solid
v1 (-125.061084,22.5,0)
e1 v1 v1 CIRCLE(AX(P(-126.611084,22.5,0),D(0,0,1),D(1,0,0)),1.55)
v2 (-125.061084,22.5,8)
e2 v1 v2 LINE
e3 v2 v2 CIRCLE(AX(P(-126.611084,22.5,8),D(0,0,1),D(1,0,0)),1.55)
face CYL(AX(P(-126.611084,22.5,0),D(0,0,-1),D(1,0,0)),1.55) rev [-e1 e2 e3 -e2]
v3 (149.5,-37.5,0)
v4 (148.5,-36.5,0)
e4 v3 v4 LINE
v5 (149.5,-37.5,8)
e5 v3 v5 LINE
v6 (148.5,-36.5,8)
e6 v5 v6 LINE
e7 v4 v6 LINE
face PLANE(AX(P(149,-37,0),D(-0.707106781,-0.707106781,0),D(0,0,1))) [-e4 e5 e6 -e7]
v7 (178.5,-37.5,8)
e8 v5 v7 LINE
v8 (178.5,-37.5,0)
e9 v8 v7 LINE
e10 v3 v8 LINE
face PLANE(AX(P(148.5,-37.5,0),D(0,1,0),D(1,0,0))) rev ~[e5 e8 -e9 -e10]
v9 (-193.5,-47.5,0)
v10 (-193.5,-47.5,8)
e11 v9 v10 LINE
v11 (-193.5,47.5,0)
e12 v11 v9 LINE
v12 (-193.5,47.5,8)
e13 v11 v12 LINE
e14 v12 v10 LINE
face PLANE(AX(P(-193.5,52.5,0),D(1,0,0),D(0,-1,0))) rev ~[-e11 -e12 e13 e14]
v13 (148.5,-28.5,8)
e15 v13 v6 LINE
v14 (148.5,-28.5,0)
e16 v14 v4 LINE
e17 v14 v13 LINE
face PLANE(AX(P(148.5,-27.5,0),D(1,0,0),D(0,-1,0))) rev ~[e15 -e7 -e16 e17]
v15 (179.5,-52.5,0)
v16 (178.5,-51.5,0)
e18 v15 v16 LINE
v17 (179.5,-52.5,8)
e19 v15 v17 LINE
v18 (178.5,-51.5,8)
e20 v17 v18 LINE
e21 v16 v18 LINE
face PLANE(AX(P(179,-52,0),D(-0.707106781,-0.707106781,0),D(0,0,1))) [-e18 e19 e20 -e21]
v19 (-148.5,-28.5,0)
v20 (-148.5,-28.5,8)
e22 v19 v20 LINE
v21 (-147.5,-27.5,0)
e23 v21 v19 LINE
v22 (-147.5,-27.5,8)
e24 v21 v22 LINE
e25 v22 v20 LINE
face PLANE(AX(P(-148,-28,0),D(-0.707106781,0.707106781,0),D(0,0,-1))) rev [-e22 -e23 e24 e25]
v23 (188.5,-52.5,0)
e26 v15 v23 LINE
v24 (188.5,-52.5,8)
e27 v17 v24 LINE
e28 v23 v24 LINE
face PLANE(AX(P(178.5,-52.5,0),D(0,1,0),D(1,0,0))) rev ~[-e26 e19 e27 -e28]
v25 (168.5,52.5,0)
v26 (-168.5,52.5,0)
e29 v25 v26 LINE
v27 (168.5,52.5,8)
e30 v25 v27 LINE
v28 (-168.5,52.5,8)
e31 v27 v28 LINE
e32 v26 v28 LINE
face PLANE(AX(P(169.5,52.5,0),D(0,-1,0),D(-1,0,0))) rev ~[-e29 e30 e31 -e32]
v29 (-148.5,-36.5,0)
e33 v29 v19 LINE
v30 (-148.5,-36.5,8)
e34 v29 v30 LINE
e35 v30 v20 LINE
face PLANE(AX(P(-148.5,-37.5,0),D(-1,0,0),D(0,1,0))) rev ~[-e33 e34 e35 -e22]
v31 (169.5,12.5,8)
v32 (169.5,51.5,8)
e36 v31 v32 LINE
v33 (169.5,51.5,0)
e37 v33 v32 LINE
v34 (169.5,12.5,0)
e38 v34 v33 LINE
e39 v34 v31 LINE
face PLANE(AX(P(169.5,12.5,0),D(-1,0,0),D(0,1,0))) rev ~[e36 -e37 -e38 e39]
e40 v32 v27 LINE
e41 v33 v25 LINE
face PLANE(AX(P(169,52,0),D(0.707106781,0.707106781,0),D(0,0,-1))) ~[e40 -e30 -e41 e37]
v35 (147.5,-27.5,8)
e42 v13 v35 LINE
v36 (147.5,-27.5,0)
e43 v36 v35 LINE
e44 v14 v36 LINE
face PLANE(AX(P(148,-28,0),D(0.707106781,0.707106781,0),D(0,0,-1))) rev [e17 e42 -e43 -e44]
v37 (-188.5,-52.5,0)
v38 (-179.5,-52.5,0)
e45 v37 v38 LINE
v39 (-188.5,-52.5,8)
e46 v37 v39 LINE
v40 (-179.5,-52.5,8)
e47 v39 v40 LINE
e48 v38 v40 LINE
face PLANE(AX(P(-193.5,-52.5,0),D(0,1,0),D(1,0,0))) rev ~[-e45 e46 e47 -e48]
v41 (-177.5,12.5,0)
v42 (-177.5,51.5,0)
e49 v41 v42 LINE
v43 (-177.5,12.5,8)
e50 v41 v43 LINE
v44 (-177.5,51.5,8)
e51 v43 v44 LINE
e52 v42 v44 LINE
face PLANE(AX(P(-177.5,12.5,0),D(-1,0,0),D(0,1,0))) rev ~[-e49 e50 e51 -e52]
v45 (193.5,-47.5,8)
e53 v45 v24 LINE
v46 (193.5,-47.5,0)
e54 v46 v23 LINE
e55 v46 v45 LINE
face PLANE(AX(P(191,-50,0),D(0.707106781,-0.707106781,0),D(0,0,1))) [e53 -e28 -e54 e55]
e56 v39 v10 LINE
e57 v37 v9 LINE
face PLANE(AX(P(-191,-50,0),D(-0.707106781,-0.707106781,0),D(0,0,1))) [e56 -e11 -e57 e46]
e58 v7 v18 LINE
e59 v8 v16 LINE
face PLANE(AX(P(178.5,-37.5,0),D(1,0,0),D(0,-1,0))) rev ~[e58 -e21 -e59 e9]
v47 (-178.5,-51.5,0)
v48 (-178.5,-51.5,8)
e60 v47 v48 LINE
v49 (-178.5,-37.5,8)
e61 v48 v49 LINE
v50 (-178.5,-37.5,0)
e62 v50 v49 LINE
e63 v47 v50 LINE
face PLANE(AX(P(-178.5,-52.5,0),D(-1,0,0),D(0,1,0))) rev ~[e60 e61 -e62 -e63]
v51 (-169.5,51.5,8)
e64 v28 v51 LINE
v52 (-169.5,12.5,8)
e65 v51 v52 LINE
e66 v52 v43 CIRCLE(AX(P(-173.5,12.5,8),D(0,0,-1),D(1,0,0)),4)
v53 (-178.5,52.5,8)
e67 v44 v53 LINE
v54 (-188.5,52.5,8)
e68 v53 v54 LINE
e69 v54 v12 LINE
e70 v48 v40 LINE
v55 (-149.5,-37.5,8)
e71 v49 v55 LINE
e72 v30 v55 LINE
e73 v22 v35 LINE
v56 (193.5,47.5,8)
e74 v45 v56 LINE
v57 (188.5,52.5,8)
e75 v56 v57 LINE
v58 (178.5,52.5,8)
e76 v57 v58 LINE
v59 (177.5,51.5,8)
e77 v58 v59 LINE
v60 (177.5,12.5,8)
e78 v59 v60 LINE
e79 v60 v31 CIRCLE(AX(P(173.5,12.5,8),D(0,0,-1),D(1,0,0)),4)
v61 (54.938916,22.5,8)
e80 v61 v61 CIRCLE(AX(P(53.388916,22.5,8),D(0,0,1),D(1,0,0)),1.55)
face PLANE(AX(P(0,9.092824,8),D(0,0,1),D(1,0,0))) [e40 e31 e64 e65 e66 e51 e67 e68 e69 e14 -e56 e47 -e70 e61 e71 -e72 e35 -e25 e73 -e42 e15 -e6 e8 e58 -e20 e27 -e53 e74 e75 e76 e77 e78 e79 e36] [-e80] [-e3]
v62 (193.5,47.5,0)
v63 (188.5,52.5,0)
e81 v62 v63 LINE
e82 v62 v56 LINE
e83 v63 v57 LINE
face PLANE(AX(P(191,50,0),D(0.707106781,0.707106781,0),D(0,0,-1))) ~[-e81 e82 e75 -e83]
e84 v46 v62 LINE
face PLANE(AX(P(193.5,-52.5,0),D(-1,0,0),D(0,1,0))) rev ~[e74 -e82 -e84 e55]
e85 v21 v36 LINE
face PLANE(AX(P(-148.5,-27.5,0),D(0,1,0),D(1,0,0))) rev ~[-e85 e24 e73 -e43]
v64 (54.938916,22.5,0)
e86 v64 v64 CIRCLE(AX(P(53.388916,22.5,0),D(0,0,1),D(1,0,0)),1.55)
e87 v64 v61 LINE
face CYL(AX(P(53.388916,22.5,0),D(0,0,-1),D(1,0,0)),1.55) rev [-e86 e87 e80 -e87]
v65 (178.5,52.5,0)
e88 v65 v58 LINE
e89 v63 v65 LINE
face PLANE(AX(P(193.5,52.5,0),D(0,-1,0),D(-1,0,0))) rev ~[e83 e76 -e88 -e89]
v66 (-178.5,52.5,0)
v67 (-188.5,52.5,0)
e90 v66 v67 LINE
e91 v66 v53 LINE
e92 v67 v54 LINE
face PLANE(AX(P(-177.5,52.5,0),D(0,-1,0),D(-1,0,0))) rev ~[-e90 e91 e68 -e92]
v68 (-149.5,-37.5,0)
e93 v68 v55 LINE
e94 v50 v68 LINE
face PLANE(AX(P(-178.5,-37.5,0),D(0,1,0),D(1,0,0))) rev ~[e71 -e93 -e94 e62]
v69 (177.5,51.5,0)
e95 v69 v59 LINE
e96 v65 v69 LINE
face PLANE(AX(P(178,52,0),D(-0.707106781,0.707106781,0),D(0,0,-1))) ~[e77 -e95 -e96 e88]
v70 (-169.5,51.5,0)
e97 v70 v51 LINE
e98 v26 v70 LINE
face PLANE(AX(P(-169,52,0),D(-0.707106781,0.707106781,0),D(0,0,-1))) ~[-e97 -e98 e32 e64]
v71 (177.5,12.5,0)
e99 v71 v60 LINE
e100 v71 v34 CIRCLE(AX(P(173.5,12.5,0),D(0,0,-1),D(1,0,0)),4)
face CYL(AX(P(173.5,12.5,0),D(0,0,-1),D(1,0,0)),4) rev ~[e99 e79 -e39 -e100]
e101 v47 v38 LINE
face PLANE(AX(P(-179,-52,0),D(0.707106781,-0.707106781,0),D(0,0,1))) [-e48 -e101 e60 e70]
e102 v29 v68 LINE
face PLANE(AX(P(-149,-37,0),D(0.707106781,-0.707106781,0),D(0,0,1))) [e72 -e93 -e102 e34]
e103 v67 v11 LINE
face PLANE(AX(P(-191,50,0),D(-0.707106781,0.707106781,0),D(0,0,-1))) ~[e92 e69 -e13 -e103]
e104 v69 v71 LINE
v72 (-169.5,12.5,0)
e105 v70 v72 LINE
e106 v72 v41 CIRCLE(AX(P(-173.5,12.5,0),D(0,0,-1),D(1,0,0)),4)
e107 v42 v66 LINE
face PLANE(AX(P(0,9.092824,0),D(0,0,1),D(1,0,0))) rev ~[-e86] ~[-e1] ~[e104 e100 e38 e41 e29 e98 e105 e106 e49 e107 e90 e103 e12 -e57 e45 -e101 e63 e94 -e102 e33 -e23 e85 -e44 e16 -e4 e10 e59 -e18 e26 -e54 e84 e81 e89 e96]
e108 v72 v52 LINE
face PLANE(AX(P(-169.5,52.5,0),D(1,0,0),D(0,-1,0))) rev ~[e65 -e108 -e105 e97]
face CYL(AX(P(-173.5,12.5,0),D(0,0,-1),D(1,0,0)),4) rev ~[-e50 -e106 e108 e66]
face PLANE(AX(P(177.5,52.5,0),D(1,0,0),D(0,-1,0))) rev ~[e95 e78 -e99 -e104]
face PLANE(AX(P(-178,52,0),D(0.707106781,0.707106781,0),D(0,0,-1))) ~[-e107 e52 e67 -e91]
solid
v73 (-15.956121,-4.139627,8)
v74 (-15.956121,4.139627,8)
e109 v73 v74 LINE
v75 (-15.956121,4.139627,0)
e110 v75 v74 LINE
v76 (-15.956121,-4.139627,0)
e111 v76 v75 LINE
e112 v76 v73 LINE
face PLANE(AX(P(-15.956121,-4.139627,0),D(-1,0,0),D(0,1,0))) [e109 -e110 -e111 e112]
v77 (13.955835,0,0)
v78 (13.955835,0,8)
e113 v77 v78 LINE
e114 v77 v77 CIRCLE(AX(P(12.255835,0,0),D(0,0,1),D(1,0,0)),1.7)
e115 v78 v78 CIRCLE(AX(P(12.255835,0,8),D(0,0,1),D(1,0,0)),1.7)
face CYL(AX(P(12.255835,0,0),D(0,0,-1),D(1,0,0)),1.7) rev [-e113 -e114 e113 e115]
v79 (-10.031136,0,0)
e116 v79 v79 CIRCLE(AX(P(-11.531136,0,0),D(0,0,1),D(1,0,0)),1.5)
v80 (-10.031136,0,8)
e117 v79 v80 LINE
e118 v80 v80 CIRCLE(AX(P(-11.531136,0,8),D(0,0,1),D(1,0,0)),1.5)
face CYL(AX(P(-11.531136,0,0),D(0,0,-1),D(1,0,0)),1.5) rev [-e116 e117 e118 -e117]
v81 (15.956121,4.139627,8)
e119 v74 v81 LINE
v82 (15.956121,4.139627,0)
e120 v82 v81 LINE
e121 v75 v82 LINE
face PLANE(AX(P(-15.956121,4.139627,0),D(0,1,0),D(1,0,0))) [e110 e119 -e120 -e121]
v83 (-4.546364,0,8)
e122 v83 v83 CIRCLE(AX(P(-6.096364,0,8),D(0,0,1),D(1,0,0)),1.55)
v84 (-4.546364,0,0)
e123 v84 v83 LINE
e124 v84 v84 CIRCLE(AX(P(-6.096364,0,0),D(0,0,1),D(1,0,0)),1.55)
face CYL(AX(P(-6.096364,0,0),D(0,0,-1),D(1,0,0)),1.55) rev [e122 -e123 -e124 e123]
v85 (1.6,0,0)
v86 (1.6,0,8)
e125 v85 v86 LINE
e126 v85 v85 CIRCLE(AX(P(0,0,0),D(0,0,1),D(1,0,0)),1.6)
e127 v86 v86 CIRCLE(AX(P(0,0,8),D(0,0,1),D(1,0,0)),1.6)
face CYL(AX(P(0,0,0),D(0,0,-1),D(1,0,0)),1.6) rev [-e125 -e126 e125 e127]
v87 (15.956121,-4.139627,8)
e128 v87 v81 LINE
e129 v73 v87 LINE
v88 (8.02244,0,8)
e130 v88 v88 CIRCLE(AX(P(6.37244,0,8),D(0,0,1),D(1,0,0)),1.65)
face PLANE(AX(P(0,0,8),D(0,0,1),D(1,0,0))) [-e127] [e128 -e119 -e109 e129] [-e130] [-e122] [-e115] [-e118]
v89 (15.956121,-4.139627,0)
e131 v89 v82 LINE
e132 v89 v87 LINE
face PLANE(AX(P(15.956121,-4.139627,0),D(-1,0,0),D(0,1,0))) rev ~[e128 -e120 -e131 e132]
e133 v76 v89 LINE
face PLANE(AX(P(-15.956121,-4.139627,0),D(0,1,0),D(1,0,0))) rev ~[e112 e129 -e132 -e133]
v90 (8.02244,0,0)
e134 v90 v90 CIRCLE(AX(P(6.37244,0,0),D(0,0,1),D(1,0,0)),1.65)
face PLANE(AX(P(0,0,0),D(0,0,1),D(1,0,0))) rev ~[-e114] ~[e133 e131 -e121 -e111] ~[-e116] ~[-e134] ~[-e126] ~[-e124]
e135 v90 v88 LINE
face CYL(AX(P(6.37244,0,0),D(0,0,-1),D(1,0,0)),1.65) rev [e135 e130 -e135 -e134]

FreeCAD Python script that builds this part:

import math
import FreeCAD as App
import Part
import Sketcher


def edges_at(feature, points):
    """Names of the edges that pass closest to the given points."""
    edges = feature.Shape.Edges
    near = lambda p: min(range(len(edges)), key=lambda i: edges[i].distToShape(Part.Vertex(*p))[0])
    return sorted({f"Edge{near(p) + 1}" for p in points})


def add_polygon(sketch, points):
    """Adds a closed chain of lines whose ends are joined by coincident constraints."""
    first, n = sketch.GeometryCount, len(points)
    for a, b in zip(points, points[1:] + points[:1]):
        sketch.addGeometry(Part.LineSegment(App.Vector(*a, 0), App.Vector(*b, 0)), False)
    for i in range(n):
        sketch.addConstraint(Sketcher.Constraint("Coincident", first + i, 2, first + (i + 1) % n, 1))

doc = App.newDocument("Part")
body = doc.addObject("PartDesign::Body", "Body")

# Sketch on XY plane
sketch1 = doc.addObject("Sketcher::SketchObject", "Sketch")
body.addObject(sketch1)
sketch1.AttachmentSupport = (doc.XY_Plane, [""])
sketch1.MapMode = "FlatFace"
sketch1.addGeometry(Part.LineSegment(App.Vector(193.5, -52.5, 0), App.Vector(193.5, 52.5, 0)), False)
sketch1.addGeometry(Part.LineSegment(App.Vector(193.5, 52.5, 0), App.Vector(177.5, 52.5, 0)), False)
sketch1.addGeometry(Part.LineSegment(App.Vector(177.5, 52.5, 0), App.Vector(177.5, 12.5, 0)), False)
sketch1.addGeometry(Part.ArcOfCircle(Part.Circle(App.Vector(173.5, 12.5, 0), App.Vector(0, 0, 1), 4), math.radians(180), math.radians(360)), False)
sketch1.addGeometry(Part.LineSegment(App.Vector(169.5, 12.5, 0), App.Vector(169.5, 52.5, 0)), False)
sketch1.addGeometry(Part.LineSegment(App.Vector(169.5, 52.5, 0), App.Vector(-169.5, 52.5, 0)), False)
sketch1.addGeometry(Part.LineSegment(App.Vector(-169.5, 52.5, 0), App.Vector(-169.5, 12.5, 0)), False)
sketch1.addGeometry(Part.ArcOfCircle(Part.Circle(App.Vector(-173.5, 12.5, 0), App.Vector(0, 0, 1), 4), math.radians(180), math.radians(360)), False)
sketch1.addGeometry(Part.LineSegment(App.Vector(-177.5, 12.5, 0), App.Vector(-177.5, 52.5, 0)), False)
sketch1.addGeometry(Part.LineSegment(App.Vector(-177.5, 52.5, 0), App.Vector(-193.5, 52.5, 0)), False)
sketch1.addGeometry(Part.LineSegment(App.Vector(-193.5, 52.5, 0), App.Vector(-193.5, -52.5, 0)), False)
sketch1.addGeometry(Part.LineSegment(App.Vector(-193.5, -52.5, 0), App.Vector(-178.5, -52.5, 0)), False)
sketch1.addGeometry(Part.LineSegment(App.Vector(-178.5, -52.5, 0), App.Vector(-178.5, -37.5, 0)), False)
sketch1.addGeometry(Part.LineSegment(App.Vector(-178.5, -37.5, 0), App.Vector(-148.5, -37.5, 0)), False)
sketch1.addGeometry(Part.LineSegment(App.Vector(-148.5, -37.5, 0), App.Vector(-148.5, -27.5, 0)), False)
sketch1.addGeometry(Part.LineSegment(App.Vector(-148.5, -27.5, 0), App.Vector(148.5, -27.5, 0)), False)
sketch1.addGeometry(Part.LineSegment(App.Vector(148.5, -27.5, 0), App.Vector(148.5, -37.5, 0)), False)
sketch1.addGeometry(Part.LineSegment(App.Vector(148.5, -37.5, 0), App.Vector(178.5, -37.5, 0)), False)
sketch1.addGeometry(Part.LineSegment(App.Vector(178.5, -37.5, 0), App.Vector(178.5, -52.5, 0)), False)
sketch1.addGeometry(Part.LineSegment(App.Vector(178.5, -52.5, 0), App.Vector(193.5, -52.5, 0)), False)
sketch1.addGeometry(Part.Circle(App.Vector(-126.6, 22.5, 0), App.Vector(0, 0, 1), 1.6), False)
sketch1.addGeometry(Part.Circle(App.Vector(53.4, 22.5, 0), App.Vector(0, 0, 1), 1.6), False)
sketch1.addConstraint(Sketcher.Constraint("Coincident", 0, 2, 1, 1))
sketch1.addConstraint(Sketcher.Constraint("Coincident", 1, 2, 2, 1))
sketch1.addConstraint(Sketcher.Constraint("Tangent", 2, 2, 3, 2))
sketch1.addConstraint(Sketcher.Constraint("Tangent", 3, 1, 4, 1))
sketch1.addConstraint(Sketcher.Constraint("Coincident", 4, 2, 5, 1))
sketch1.addConstraint(Sketcher.Constraint("Coincident", 5, 2, 6, 1))
sketch1.addConstraint(Sketcher.Constraint("Tangent", 6, 2, 7, 2))
sketch1.addConstraint(Sketcher.Constraint("Tangent", 7, 1, 8, 1))
sketch1.addConstraint(Sketcher.Constraint("Coincident", 8, 2, 9, 1))
sketch1.addConstraint(Sketcher.Constraint("Coincident", 9, 2, 10, 1))
sketch1.addConstraint(Sketcher.Constraint("Coincident", 10, 2, 11, 1))
sketch1.addConstraint(Sketcher.Constraint("Coincident", 11, 2, 12, 1))
sketch1.addConstraint(Sketcher.Constraint("Coincident", 12, 2, 13, 1))
sketch1.addConstraint(Sketcher.Constraint("Coincident", 13, 2, 14, 1))
sketch1.addConstraint(Sketcher.Constraint("Coincident", 14, 2, 15, 1))
sketch1.addConstraint(Sketcher.Constraint("Coincident", 15, 2, 16, 1))
sketch1.addConstraint(Sketcher.Constraint("Coincident", 16, 2, 17, 1))
sketch1.addConstraint(Sketcher.Constraint("Coincident", 17, 2, 18, 1))
sketch1.addConstraint(Sketcher.Constraint("Coincident", 18, 2, 19, 1))
sketch1.addConstraint(Sketcher.Constraint("Coincident", 19, 2, 0, 1))
sketch1.addConstraint(Sketcher.Constraint("Vertical", 0))
sketch1.addConstraint(Sketcher.Constraint("Horizontal", 1))
sketch1.addConstraint(Sketcher.Constraint("Vertical", 2))
sketch1.addConstraint(Sketcher.Constraint("Vertical", 4))
sketch1.addConstraint(Sketcher.Constraint("Horizontal", 5))
sketch1.addConstraint(Sketcher.Constraint("Vertical", 6))
sketch1.addConstraint(Sketcher.Constraint("Vertical", 8))
sketch1.addConstraint(Sketcher.Constraint("Horizontal", 9))
sketch1.addConstraint(Sketcher.Constraint("Vertical", 10))
sketch1.addConstraint(Sketcher.Constraint("Horizontal", 11))
sketch1.addConstraint(Sketcher.Constraint("Vertical", 12))
sketch1.addConstraint(Sketcher.Constraint("Horizontal", 13))
sketch1.addConstraint(Sketcher.Constraint("Vertical", 14))
sketch1.addConstraint(Sketcher.Constraint("Horizontal", 15))
sketch1.addConstraint(Sketcher.Constraint("Vertical", 16))
sketch1.addConstraint(Sketcher.Constraint("Horizontal", 17))
sketch1.addConstraint(Sketcher.Constraint("Vertical", 18))
sketch1.addConstraint(Sketcher.Constraint("Horizontal", 19))
sketch1.addConstraint(Sketcher.Constraint("Equal", 3, 7))
sketch1.addConstraint(Sketcher.Constraint("Equal", 20, 21))
sketch1.addConstraint(Sketcher.Constraint("Symmetric", 0, 2, 10, 2, -1, 1))
sketch1.addConstraint(Sketcher.Constraint("Symmetric", 3, 3, 7, 3, -2))
sketch1.addConstraint(Sketcher.Constraint("Symmetric", 13, 2, 16, 2, -2))
sketch1.addConstraint(Sketcher.Constraint("Symmetric", 11, 2, 18, 2, -2))
sketch1.addConstraint(Sketcher.Constraint("Horizontal", 20, 3, 21, 3))
sketch1.addConstraint(Sketcher.Constraint("Horizontal", 1, 2, 4, 2))
sketch1.addConstraint(Sketcher.Constraint("Horizontal", 5, 2, 8, 2))
sketch1.addConstraint(Sketcher.Constraint("Equal", 19, 12))
sketch1.addConstraint(Sketcher.Constraint("Radius", 3, 4.0))
sketch1.addConstraint(Sketcher.Constraint("Diameter", 20, 3.1))
sketch1.addConstraint(Sketcher.Constraint("DistanceX", 1, 2, 1, 1, 16.0))
sketch1.addConstraint(Sketcher.Constraint("DistanceX", 5, 2, 5, 1, 339.0))
sketch1.addConstraint(Sketcher.Constraint("DistanceX", 11, 1, 11, 2, 15.0))
sketch1.addConstraint(Sketcher.Constraint("DistanceX", 13, 1, 13, 2, 30.0))
sketch1.addConstraint(Sketcher.Constraint("DistanceY", 0, 1, 0, 2, 105.0))
sketch1.addConstraint(Sketcher.Constraint("DistanceY", 2, 2, 2, 1, 40.0))
sketch1.addConstraint(Sketcher.Constraint("DistanceY", 14, 1, 14, 2, 10.0))
sketch1.addConstraint(Sketcher.Constraint("DistanceY", 7, 3, 20, 3, 10.0))
sketch1.addConstraint(Sketcher.Constraint("DistanceX", 20, 3, 21, 3, 180.0))
sketch1.addConstraint(Sketcher.Constraint("DistanceX", 20, 3, -1, 1, 126.611084))
pad1 = doc.addObject("PartDesign::Pad", "Pad")
body.addObject(pad1)
pad1.Profile = sketch1
pad1.Length = 8
doc.recompute()

chamfer = doc.addObject("PartDesign::Chamfer", "Chamfer")
body.addObject(chamfer)
chamfer.Base = (pad1, edges_at(pad1, [
    (-193.5, 52.5, 4),
    (-193.5, -52.5, 4),
    (193.5, -52.5, 4),
    (193.5, 52.5, 4),
]))
chamfer.Size = 5
doc.recompute()

chamfer2 = doc.addObject("PartDesign::Chamfer", "Chamfer001")
body.addObject(chamfer2)
chamfer2.Base = (chamfer, edges_at(chamfer, [
    (-178.5, -52.5, 4),
    (178.5, -52.5, 4),
    (177.5, 52.5, 4),
    (169.5, 52.5, 4),
    (-177.5, 52.5, 4),
    (-169.5, 52.5, 4),
    (-148.5, -27.5, 4),
    (148.5, -27.5, 4),
    (148.5, -37.5, 4),
    (-148.5, -37.5, 4),
]))
chamfer2.Size = 1
body2 = doc.addObject("PartDesign::Body", "Body001")

# Sketch on XY plane
sketch2 = doc.addObject("Sketcher::SketchObject", "Sketch001")
body2.addObject(sketch2)
sketch2.AttachmentSupport = (doc.getObject("XY_Plane001"), [""])
sketch2.MapMode = "FlatFace"
add_polygon(sketch2, [(-16, 4.1), (-16, -4.1), (16, -4.1), (16, 4.1)])  # lines 0-3
sketch2.addGeometry(Part.Circle(App.Vector(-11.5, 0, 0), App.Vector(0, 0, 1), 1.5), False)  # 4
sketch2.addGeometry(Part.Circle(App.Vector(-6.1, 0, 0), App.Vector(0, 0, 1), 1.6), False)  # 5
sketch2.addGeometry(Part.Circle(App.Vector(0, 0, 0), App.Vector(0, 0, 1), 1.6), False)  # 6
sketch2.addGeometry(Part.Circle(App.Vector(6.4, 0, 0), App.Vector(0, 0, 1), 1.6), False)  # 7
sketch2.addGeometry(Part.Circle(App.Vector(12.3, 0, 0), App.Vector(0, 0, 1), 1.7), False)  # 8
sketch2.addConstraint(Sketcher.Constraint("Vertical", 0))
sketch2.addConstraint(Sketcher.Constraint("Horizontal", 1))
sketch2.addConstraint(Sketcher.Constraint("Vertical", 2))
sketch2.addConstraint(Sketcher.Constraint("Horizontal", 3))
sketch2.addConstraint(Sketcher.Constraint("Coincident", 6, 3, -1, 1))
sketch2.addConstraint(Sketcher.Constraint("Symmetric", 0, 2, 2, 2, -1, 1))
sketch2.addConstraint(Sketcher.Constraint("PointOnObject", 4, 3, -1))
sketch2.addConstraint(Sketcher.Constraint("PointOnObject", 5, 3, -1))
sketch2.addConstraint(Sketcher.Constraint("PointOnObject", 7, 3, -1))
sketch2.addConstraint(Sketcher.Constraint("PointOnObject", 8, 3, -1))
sketch2.addConstraint(Sketcher.Constraint("Diameter", 4, 3.0))
sketch2.addConstraint(Sketcher.Constraint("Diameter", 5, 3.1))
sketch2.addConstraint(Sketcher.Constraint("Diameter", 6, 3.2))
sketch2.addConstraint(Sketcher.Constraint("Diameter", 7, 3.3))
sketch2.addConstraint(Sketcher.Constraint("Diameter", 8, 3.4))
sketch2.addConstraint(Sketcher.Constraint("DistanceX", 1, 1, 1, 2, 31.912242))
sketch2.addConstraint(Sketcher.Constraint("DistanceX", 5, 3, 8, 3, 18.352199))
sketch2.addConstraint(Sketcher.Constraint("DistanceY", 0, 2, 0, 1, 8.279254))
sketch2.addConstraint(Sketcher.Constraint("DistanceX", -1, 1, 7, 3, 6.37244))
sketch2.addConstraint(Sketcher.Constraint("DistanceX", 4, 3, 5, 3, 5.434772))
sketch2.addConstraint(Sketcher.Constraint("DistanceX", 4, 3, -1, 1, 11.531136))
pad2 = doc.addObject("PartDesign::Pad", "Pad001")
body2.addObject(pad2)
pad2.Profile = sketch2
pad2.Length = 8

doc.recompute()
